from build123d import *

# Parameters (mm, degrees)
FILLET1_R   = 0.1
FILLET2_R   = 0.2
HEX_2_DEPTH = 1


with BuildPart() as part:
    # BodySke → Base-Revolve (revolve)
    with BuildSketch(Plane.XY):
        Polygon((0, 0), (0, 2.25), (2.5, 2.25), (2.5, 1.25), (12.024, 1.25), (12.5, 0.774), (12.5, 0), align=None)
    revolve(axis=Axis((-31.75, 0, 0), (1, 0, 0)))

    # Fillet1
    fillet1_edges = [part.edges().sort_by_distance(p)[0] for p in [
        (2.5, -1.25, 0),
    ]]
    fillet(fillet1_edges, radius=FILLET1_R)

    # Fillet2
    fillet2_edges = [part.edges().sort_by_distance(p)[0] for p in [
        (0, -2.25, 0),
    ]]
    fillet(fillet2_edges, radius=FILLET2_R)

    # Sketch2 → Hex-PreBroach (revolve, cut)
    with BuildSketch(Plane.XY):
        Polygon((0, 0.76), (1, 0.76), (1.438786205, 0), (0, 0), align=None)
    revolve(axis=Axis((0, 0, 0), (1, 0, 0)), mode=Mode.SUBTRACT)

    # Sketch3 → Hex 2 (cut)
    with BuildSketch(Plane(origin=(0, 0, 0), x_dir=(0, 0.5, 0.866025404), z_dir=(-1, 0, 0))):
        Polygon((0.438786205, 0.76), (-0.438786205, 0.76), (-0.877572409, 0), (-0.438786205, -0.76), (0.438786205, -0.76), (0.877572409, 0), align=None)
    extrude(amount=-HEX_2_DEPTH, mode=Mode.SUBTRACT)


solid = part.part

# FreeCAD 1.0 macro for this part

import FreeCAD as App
import Part
import Sketcher
Q = App.Units.Quantity


def edges_at(feature, points):
    """Names of the edges that pass closest to the given points."""
    edges = feature.Shape.Edges
    near = lambda p: min(range(len(edges)), key=lambda i: edges[i].distToShape(Part.Vertex(*p))[0])
    return sorted({f"Edge{near(p) + 1}" for p in points})

doc = App.newDocument("Part")
params = doc.addObject("Spreadsheet::Sheet", "Params")
for row, (alias, value) in enumerate([
    ("sketch1_height", "1 mm"),
    ("sketch1_width", "12.5 mm"),
    ("sketch1_width2", "2.5 mm"),
    ("sketch1_height2", "2.25 mm"),
    ("revolution_angle", "360 deg"),
    ("fillet_radius", "0.1 mm"),
    ("fillet2_radius", "0.2 mm"),
    ("sketch2_width", "1 mm"),
    ("sketch2_height", "0.76 mm"),
    ("groove_angle", "360 deg"),
    ("pocket1_length", "1 mm"),
], start=1):
    params.set(f"A{row}", alias)
    params.set(f"B{row}", "=" + value)
    params.setAlias(f"B{row}", alias)

body = doc.addObject("PartDesign::Body", "Body")

# Sketch on XY plane
sketch1 = body.newObject("Sketcher::SketchObject", "Sketch")
sketch1.AttachmentSupport = (doc.getObject("XY_Plane"), [""])
sketch1.MapMode = "FlatFace"
sketch1.addGeometry([
    Part.LineSegment(App.Vector(0, 2.25, 0), App.Vector(0, 0, 0)),  # 0
    Part.LineSegment(App.Vector(0, 0, 0), App.Vector(12.5, 0, 0)),  # 1
    Part.LineSegment(App.Vector(12.5, 0, 0), App.Vector(12.5, 0.774, 0)),  # 2
    Part.LineSegment(App.Vector(12.5, 0.774, 0), App.Vector(12.024, 1.25, 0)),  # 3
    Part.LineSegment(App.Vector(12.024, 1.25, 0), App.Vector(2.5, 1.25, 0)),  # 4
    Part.LineSegment(App.Vector(2.5, 1.25, 0), App.Vector(2.5, 2.25, 0)),  # 5
    Part.LineSegment(App.Vector(2.5, 2.25, 0), App.Vector(0, 2.25, 0)),  # 6
], False)
sketch1.addConstraint([
    Sketcher.Constraint("Coincident", 0, 2, 1, 1),
    Sketcher.Constraint("Coincident", 1, 2, 2, 1),
    Sketcher.Constraint("Coincident", 2, 2, 3, 1),
    Sketcher.Constraint("Coincident", 3, 2, 4, 1),
    Sketcher.Constraint("Coincident", 4, 2, 5, 1),
    Sketcher.Constraint("Coincident", 5, 2, 6, 1),
    Sketcher.Constraint("Coincident", 6, 2, 0, 1),
    Sketcher.Constraint("Vertical", 0),
    Sketcher.Constraint("Horizontal", 1),
    Sketcher.Constraint("Vertical", 2),
    Sketcher.Constraint("Horizontal", 4),
    Sketcher.Constraint("Vertical", 5),
    Sketcher.Constraint("Horizontal", 6),
    Sketcher.Constraint("Coincident", 0, 2, -1, 1),
    Sketcher.Constraint("DistanceY", 5, 1, 5, 2, Q("1 mm")),
    Sketcher.Constraint("Angle", 3, Q("135 deg")),
    Sketcher.Constraint("DistanceX", 1, 1, 1, 2, Q("12.5 mm")),
    Sketcher.Constraint("DistanceX", 6, 2, 6, 1, Q("2.5 mm")),
    Sketcher.Constraint("DistanceY", 0, 2, 0, 1, Q("2.25 mm")),
    Sketcher.Constraint("DistanceX", 4, 2, 4, 1, Q("9.524 mm")),
])
sketch1.setExpression("Constraints[14]", "Params.sketch1_height")
sketch1.setExpression("Constraints[16]", "Params.sketch1_width")
sketch1.setExpression("Constraints[17]", "Params.sketch1_width2")
sketch1.setExpression("Constraints[18]", "Params.sketch1_height2")
revolution = body.newObject("PartDesign::Revolution", "Revolution")
revolution.Profile = sketch1
revolution.ReferenceAxis = (sketch1, ["H_Axis"])
revolution.setExpression("Angle", "Params.revolution_angle")
doc.recompute()

fillet = body.newObject("PartDesign::Fillet", "Fillet")
fillet.Base = (revolution, edges_at(revolution, [(2.5, -1.25, 0)]))
fillet.setExpression("Radius", "Params.fillet_radius")
doc.recompute()

fillet2 = body.newObject("PartDesign::Fillet", "Fillet001")
fillet2.Base = (fillet, edges_at(fillet, [(0, -2.25, 0)]))
fillet2.setExpression("Radius", "Params.fillet2_radius")

# Sketch on XY plane
sketch2 = body.newObject("Sketcher::SketchObject", "Sketch001")
sketch2.AttachmentSupport = (doc.getObject("XY_Plane"), [""])
sketch2.MapMode = "FlatFace"
sketch2.addGeometry([
    Part.LineSegment(App.Vector(1, 0.76, 0), App.Vector(0, 0.76, 0)),
    Part.LineSegment(App.Vector(0, 0.76, 0), App.Vector(0, 0, 0)),
    Part.LineSegment(App.Vector(0, 0, 0), App.Vector(1.438786, 0, 0)),
    Part.LineSegment(App.Vector(1.438786, 0, 0), App.Vector(1, 0.76, 0)),
], False)
sketch2.addConstraint([
    Sketcher.Constraint("Coincident", 0, 2, 1, 1),
    Sketcher.Constraint("Coincident", 1, 2, 2, 1),
    Sketcher.Constraint("Coincident", 2, 2, 3, 1),
    Sketcher.Constraint("Coincident", 3, 2, 0, 1),
    Sketcher.Constraint("Horizontal", 0),
    Sketcher.Constraint("Vertical", 1),
    Sketcher.Constraint("Horizontal", 2),
    Sketcher.Constraint("Coincident", 1, 2, -1, 1),
    Sketcher.Constraint("DistanceX", 0, 2, 0, 1, Q("1 mm")),
    Sketcher.Constraint("Angle", 3, Q("120 deg")),
    Sketcher.Constraint("DistanceY", 1, 2, 1, 1, Q("0.76 mm")),
])
sketch2.setExpression("Constraints[8]", "Params.sketch2_width")
sketch2.setExpression("Constraints[10]", "Params.sketch2_height")
groove = body.newObject("PartDesign::Groove", "Groove")
groove.Profile = sketch2
groove.ReferenceAxis = (sketch2, ["H_Axis"])
groove.setExpression("Angle", "Params.groove_angle")

# Sketch on YZ plane
sketch3 = body.newObject("Sketcher::SketchObject", "Sketch002")
sketch3.AttachmentSupport = (doc.getObject("YZ_Plane"), [""])
sketch3.MapMode = "FlatFace"
sketch3.addGeometry([
    Part.LineSegment(App.Vector(0.877572, 0, 0), App.Vector(0.438786, -0.76, 0)),  # 0
    Part.LineSegment(App.Vector(0.438786, -0.76, 0), App.Vector(-0.438786, -0.76, 0)),  # 1
    Part.LineSegment(App.Vector(-0.438786, -0.76, 0), App.Vector(-0.877572, 0, 0)),  # 2
    Part.LineSegment(App.Vector(-0.877572, 0, 0), App.Vector(-0.438786, 0.76, 0)),  # 3
    Part.LineSegment(App.Vector(-0.438786, 0.76, 0), App.Vector(0.438786, 0.76, 0)),  # 4
    Part.LineSegment(App.Vector(0.438786, 0.76, 0), App.Vector(0.877572, 0, 0)),  # 5
], False)
sketch3.addConstraint([
    Sketcher.Constraint("Coincident", 0, 2, 1, 1),
    Sketcher.Constraint("Coincident", 1, 2, 2, 1),
    Sketcher.Constraint("Coincident", 2, 2, 3, 1),
    Sketcher.Constraint("Coincident", 3, 2, 4, 1),
    Sketcher.Constraint("Coincident", 4, 2, 5, 1),
    Sketcher.Constraint("Coincident", 5, 2, 0, 1),
    Sketcher.Constraint("Horizontal", 1),
    Sketcher.Constraint("Horizontal", 4),
    Sketcher.Constraint("Symmetric", 0, 2, 3, 2, -1, 1),
    Sketcher.Constraint("Symmetric", 2, 2, 5, 2, -1, 1),
    Sketcher.Constraint("PointOnObject", 2, 2, -1),
    Sketcher.Constraint("Parallel", 2, 5),
    Sketcher.Constraint("Vertical", 1, 2, 3, 2),
    Sketcher.Constraint("Angle", 0, Q("-120 deg")),
    Sketcher.Constraint("DistanceY", 0, 2, -1, 1, Q("0.76 mm")),
    Sketcher.Constraint("DistanceX", 1, 2, 1, 1, Q("0.877572 mm")),
])
pocket1 = body.newObject("PartDesign::Pocket", "Pocket")
pocket1.Profile = sketch3
pocket1.setExpression("Length", "Params.pocket1_length")
pocket1.Reversed = True

doc.recompute()
